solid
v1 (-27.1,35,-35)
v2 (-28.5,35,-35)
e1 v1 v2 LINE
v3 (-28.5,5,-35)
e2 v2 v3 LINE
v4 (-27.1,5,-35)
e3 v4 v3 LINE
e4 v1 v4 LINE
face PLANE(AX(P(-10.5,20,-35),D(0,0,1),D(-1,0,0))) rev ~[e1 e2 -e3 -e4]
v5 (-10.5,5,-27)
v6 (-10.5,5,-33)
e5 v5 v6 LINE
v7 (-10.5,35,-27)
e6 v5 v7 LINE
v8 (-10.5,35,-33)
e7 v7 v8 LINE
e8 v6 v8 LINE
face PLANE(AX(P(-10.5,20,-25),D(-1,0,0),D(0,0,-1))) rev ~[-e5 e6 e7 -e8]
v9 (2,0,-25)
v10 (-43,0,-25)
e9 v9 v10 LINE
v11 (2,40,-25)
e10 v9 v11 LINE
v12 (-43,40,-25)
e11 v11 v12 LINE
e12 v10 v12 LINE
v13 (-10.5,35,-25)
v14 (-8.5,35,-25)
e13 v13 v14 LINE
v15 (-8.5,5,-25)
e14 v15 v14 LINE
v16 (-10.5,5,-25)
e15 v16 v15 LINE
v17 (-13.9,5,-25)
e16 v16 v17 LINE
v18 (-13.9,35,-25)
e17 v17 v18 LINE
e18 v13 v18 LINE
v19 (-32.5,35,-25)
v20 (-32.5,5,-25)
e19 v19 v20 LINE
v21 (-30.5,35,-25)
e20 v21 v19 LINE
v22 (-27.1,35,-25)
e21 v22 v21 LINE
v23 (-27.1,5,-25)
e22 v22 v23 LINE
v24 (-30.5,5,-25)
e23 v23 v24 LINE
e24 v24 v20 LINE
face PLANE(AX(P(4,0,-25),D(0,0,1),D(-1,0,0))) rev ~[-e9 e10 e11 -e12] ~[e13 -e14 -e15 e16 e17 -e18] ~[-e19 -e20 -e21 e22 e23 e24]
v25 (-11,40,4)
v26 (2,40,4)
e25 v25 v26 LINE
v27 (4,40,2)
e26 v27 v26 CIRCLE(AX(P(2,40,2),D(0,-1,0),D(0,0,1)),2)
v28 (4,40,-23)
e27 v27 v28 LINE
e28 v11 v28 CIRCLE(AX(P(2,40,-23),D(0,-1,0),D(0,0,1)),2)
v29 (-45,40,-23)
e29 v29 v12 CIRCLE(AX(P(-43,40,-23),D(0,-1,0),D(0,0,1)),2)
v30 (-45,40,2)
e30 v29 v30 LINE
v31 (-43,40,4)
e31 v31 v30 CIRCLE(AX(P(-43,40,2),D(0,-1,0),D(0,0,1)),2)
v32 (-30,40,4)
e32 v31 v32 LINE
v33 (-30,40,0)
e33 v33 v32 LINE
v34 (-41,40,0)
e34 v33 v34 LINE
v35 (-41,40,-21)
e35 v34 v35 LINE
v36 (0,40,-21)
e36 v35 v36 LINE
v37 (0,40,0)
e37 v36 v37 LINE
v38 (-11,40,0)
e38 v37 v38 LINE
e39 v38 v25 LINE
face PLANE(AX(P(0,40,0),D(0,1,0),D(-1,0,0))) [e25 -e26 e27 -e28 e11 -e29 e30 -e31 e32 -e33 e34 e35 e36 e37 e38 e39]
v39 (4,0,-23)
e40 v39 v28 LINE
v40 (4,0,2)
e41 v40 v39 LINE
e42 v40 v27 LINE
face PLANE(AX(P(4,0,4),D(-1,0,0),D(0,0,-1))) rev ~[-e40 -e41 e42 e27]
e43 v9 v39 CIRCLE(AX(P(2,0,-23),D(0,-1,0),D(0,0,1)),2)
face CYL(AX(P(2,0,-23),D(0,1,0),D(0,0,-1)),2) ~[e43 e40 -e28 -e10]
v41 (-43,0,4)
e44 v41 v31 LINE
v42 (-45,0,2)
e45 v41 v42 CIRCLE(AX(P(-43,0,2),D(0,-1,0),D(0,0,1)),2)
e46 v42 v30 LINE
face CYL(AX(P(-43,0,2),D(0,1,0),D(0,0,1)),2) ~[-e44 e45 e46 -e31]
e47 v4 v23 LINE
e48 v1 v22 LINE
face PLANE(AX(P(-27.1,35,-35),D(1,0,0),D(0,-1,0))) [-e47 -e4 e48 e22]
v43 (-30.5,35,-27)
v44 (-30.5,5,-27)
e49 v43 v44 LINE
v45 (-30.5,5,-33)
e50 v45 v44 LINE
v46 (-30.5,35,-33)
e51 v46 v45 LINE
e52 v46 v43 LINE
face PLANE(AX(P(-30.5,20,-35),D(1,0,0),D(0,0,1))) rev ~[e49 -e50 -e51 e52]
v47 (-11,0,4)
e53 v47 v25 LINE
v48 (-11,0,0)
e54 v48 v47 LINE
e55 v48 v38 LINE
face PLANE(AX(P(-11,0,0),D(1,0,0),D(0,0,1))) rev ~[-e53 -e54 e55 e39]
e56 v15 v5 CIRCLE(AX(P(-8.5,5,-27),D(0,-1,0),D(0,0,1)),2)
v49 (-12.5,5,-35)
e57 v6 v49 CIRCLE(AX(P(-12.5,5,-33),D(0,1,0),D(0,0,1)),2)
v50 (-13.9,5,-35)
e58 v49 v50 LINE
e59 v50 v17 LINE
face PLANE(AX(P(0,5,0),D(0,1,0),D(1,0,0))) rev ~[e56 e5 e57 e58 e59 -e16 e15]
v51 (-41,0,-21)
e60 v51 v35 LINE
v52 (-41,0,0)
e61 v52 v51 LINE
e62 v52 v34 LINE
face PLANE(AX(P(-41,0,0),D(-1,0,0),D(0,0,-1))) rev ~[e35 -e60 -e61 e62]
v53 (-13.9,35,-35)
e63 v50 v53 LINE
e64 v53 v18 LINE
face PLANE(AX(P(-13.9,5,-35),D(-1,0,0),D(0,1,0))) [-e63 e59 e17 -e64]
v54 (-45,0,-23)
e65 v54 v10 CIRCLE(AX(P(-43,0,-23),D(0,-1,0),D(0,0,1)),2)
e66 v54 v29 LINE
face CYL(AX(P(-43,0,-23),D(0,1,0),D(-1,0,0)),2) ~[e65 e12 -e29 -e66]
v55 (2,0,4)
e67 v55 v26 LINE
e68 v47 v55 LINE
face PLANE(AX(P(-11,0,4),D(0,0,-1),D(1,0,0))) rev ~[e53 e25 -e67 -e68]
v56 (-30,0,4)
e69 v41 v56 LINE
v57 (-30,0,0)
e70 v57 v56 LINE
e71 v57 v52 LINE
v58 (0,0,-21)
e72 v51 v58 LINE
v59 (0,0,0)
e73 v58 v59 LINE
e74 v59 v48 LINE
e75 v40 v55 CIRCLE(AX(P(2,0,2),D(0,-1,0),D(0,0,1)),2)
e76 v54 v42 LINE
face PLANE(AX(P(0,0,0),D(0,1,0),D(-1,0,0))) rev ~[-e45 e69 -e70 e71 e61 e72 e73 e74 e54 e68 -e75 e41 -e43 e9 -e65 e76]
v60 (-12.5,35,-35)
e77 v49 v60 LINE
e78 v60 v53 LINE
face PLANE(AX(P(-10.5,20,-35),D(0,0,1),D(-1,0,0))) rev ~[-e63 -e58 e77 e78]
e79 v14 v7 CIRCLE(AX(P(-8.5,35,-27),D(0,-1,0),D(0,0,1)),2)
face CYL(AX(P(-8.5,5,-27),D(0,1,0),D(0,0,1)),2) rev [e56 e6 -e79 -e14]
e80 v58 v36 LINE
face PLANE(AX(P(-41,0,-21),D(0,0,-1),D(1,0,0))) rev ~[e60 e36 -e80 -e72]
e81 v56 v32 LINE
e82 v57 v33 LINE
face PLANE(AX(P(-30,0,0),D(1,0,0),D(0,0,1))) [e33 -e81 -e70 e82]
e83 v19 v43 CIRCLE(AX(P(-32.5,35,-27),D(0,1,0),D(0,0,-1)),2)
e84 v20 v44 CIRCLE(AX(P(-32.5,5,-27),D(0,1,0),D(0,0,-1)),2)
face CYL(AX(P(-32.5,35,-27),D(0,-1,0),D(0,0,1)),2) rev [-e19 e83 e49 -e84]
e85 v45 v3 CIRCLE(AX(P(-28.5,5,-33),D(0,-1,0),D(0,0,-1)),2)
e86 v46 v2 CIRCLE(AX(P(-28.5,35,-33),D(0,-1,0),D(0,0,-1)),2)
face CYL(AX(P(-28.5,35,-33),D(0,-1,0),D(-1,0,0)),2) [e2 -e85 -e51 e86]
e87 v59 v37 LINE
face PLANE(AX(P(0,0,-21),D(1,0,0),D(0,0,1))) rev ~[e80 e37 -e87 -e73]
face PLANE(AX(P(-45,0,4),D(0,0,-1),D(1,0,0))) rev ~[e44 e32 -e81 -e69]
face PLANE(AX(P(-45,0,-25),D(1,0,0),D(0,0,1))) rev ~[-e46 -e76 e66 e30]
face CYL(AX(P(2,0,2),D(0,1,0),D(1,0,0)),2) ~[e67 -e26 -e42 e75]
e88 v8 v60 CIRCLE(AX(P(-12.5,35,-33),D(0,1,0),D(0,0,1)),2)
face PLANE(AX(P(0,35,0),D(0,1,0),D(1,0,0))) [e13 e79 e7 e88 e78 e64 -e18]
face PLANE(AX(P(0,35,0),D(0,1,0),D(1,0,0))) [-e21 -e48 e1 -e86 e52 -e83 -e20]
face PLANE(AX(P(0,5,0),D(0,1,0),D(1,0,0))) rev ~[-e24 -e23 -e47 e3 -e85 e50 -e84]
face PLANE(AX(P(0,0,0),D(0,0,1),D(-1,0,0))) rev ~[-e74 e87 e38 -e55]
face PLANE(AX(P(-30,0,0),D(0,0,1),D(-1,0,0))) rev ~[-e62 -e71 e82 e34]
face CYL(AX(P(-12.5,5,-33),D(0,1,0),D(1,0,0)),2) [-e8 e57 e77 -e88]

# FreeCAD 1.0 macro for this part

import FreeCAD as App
import Part
import Sketcher
Q = App.Units.Quantity


def edges_at(feature, points):
    """Names of the edges that pass closest to the given points."""
    edges = feature.Shape.Edges
    near = lambda p: min(range(len(edges)), key=lambda i: edges[i].distToShape(Part.Vertex(*p))[0])
    return sorted({f"Edge{near(p) + 1}" for p in points})


def add_polygon(sketch, points):
    """Adds a closed chain of lines whose ends are joined by coincident constraints."""
    first, n = sketch.GeometryCount, len(points)
    for a, b in zip(points, points[1:] + points[:1]):
        sketch.addGeometry(Part.LineSegment(App.Vector(*a, 0), App.Vector(*b, 0)), False)
    for i in range(n):
        sketch.addConstraint(Sketcher.Constraint("Coincident", first + i, 2, first + (i + 1) % n, 1))

doc = App.newDocument("Part")
params = doc.addObject("Spreadsheet::Sheet", "Params")
for row, (alias, value) in enumerate([
    ("sketch1_width", "41 mm"),
    ("sketch1_width2", "15 mm"),
    ("sketch1_height", "21 mm"),
    ("sketch1_height2", "4 mm"),
    ("pad1_length", "40 mm"),
    ("sketch2_width", "20 mm"),
    ("sketch2_height", "10 mm"),
    ("pad2_length", "15 mm"),
    ("pad2_length2", "15 mm"),
    ("sketch3_width", "13.2 mm"),
    ("sketch3_height", "30 mm"),
    ("pocket1_length", "10 mm"),
    ("fillet_radius", "2 mm"),
], start=1):
    params.set(f"A{row}", alias)
    params.set(f"B{row}", "=" + value)
    params.setAlias(f"B{row}", alias)

body = doc.addObject("PartDesign::Body", "Body")

sketch1 = doc.addObject("Sketcher::SketchObject", "Sketch")
body.addObject(sketch1)
sketch1.AttachmentSupport = (doc.XZ_Plane, [""])
sketch1.MapMode = "FlatFace"
add_polygon(sketch1, [(-30, 0), (-41, 0), (-41, -21), (0, -21), (0, 0), (-11, 0), (-11, 4), (4, 4), (4, -25), (-45, -25), (-45, 4), (-30, 4)])
sketch1.addConstraint(Sketcher.Constraint("Horizontal", 0))
sketch1.addConstraint(Sketcher.Constraint("Vertical", 1))
sketch1.addConstraint(Sketcher.Constraint("Horizontal", 2))
sketch1.addConstraint(Sketcher.Constraint("Vertical", 3))
sketch1.addConstraint(Sketcher.Constraint("Horizontal", 4))
sketch1.addConstraint(Sketcher.Constraint("Vertical", 5))
sketch1.addConstraint(Sketcher.Constraint("Horizontal", 6))
sketch1.addConstraint(Sketcher.Constraint("Vertical", 7))
sketch1.addConstraint(Sketcher.Constraint("Horizontal", 8))
sketch1.addConstraint(Sketcher.Constraint("Vertical", 9))
sketch1.addConstraint(Sketcher.Constraint("Horizontal", 10))
sketch1.addConstraint(Sketcher.Constraint("Vertical", 11))
sketch1.addConstraint(Sketcher.Constraint("Coincident", 3, 2, -1, 1))
sketch1.addConstraint(Sketcher.Constraint("PointOnObject", 0, 2, -1))
sketch1.addConstraint(Sketcher.Constraint("Horizontal", 6, 2, 9, 2))
sketch1.addConstraint(Sketcher.Constraint("Equal", 0, 4))
sketch1.addConstraint(Sketcher.Constraint("Equal", 6, 10))
sketch1.addConstraint(Sketcher.Constraint("DistanceX", 2, 1, 2, 2, Q("41 mm")))
sketch1.addConstraint(Sketcher.Constraint("DistanceX", 6, 1, 6, 2, Q("15 mm")))
sketch1.addConstraint(Sketcher.Constraint("DistanceY", 1, 2, 1, 1, Q("21 mm")))
sketch1.addConstraint(Sketcher.Constraint("DistanceY", 5, 1, 5, 2, Q("4 mm")))
sketch1.addConstraint(Sketcher.Constraint("DistanceX", -1, 1, 6, 2, Q("4 mm")))
sketch1.addConstraint(Sketcher.Constraint("DistanceY", 7, 2, 2, 2, Q("4 mm")))
sketch1.setExpression("Constraints[29]", "Params.sketch1_width")
sketch1.setExpression("Constraints[30]", "Params.sketch1_width2")
sketch1.setExpression("Constraints[31]", "Params.sketch1_height")
sketch1.setExpression("Constraints[32]", "Params.sketch1_height2")
pad1 = doc.addObject("PartDesign::Pad", "Pad")
body.addObject(pad1)
pad1.Profile = sketch1
pad1.setExpression("Length", "Params.pad1_length")
pad1.Reversed = True

sketch2 = doc.addObject("Sketcher::SketchObject", "Sketch001")
body.addObject(sketch2)
sketch2.AttachmentSupport = (doc.XZ_Plane, [""])
sketch2.MapMode = "FlatFace"
sketch2.AttachmentOffset = App.Placement(App.Vector(0, 0, -20), App.Rotation())
add_polygon(sketch2, [(-30, -25), (-10, -25), (-10, -35), (-30, -35)])
sketch2.addConstraint(Sketcher.Constraint("Horizontal", 0))
sketch2.addConstraint(Sketcher.Constraint("Vertical", 1))
sketch2.addConstraint(Sketcher.Constraint("Horizontal", 2))
sketch2.addConstraint(Sketcher.Constraint("Vertical", 3))
sketch2.addConstraint(Sketcher.Constraint("DistanceX", 0, 1, 0, 2, Q("20 mm")))
sketch2.addConstraint(Sketcher.Constraint("DistanceY", 1, 2, 1, 1, Q("10 mm")))
sketch2.addConstraint(Sketcher.Constraint("DistanceY", 0, 2, -1, 1, Q("25 mm")))
sketch2.addConstraint(Sketcher.Constraint("DistanceX", 0, 2, -1, 1, Q("10.5 mm")))
sketch2.setExpression("Constraints[8]", "Params.sketch2_width")
sketch2.setExpression("Constraints[9]", "Params.sketch2_height")
pad2 = doc.addObject("PartDesign::Pad", "Pad001")
body.addObject(pad2)
pad2.Profile = sketch2
pad2.Type = "TwoLengths"
pad2.setExpression("Length", "Params.pad2_length")
pad2.setExpression("Length2", "Params.pad2_length2")
pad2.Reversed = True

sketch3 = doc.addObject("Sketcher::SketchObject", "Sketch002")
body.addObject(sketch3)
sketch3.AttachmentSupport = (doc.XY_Plane, [""])
sketch3.MapMode = "FlatFace"
sketch3.AttachmentOffset = App.Placement(App.Vector(0, 0, -35), App.Rotation())
add_polygon(sketch3, [(-27, 5), (-27, 35), (-14, 35), (-14, 5)])
sketch3.addConstraint(Sketcher.Constraint("Vertical", 0))
sketch3.addConstraint(Sketcher.Constraint("Horizontal", 1))
sketch3.addConstraint(Sketcher.Constraint("Vertical", 2))
sketch3.addConstraint(Sketcher.Constraint("Horizontal", 3))
sketch3.addConstraint(Sketcher.Constraint("DistanceX", 1, 1, 1, 2, Q("13.2 mm")))
sketch3.addConstraint(Sketcher.Constraint("DistanceY", 0, 1, 0, 2, Q("30 mm")))
sketch3.addConstraint(Sketcher.Constraint("DistanceY", -1, 1, 0, 2, Q("35 mm")))
sketch3.addConstraint(Sketcher.Constraint("DistanceX", 0, 2, -1, 1, Q("27.1 mm")))
sketch3.setExpression("Constraints[8]", "Params.sketch3_width")
sketch3.setExpression("Constraints[9]", "Params.sketch3_height")
pocket1 = doc.addObject("PartDesign::Pocket", "Pocket")
body.addObject(pocket1)
pocket1.Profile = sketch3
pocket1.setExpression("Length", "Params.pocket1_length")
pocket1.Reversed = True
doc.recompute()

fillet = doc.addObject("PartDesign::Fillet", "Fillet")
body.addObject(fillet)
fillet.Base = (pocket1, edges_at(pocket1, [
    (-30.5, 20, -35),
    (-10.5, 20, -35),
    (-10.5, 20, -25),
    (-30.5, 20, -25),
    (-45, 20, -25),
    (4, 20, -25),
    (4, 20, 4),
    (-45, 20, 4),
]))
fillet.setExpression("Radius", "Params.fillet_radius")

doc.recompute()
